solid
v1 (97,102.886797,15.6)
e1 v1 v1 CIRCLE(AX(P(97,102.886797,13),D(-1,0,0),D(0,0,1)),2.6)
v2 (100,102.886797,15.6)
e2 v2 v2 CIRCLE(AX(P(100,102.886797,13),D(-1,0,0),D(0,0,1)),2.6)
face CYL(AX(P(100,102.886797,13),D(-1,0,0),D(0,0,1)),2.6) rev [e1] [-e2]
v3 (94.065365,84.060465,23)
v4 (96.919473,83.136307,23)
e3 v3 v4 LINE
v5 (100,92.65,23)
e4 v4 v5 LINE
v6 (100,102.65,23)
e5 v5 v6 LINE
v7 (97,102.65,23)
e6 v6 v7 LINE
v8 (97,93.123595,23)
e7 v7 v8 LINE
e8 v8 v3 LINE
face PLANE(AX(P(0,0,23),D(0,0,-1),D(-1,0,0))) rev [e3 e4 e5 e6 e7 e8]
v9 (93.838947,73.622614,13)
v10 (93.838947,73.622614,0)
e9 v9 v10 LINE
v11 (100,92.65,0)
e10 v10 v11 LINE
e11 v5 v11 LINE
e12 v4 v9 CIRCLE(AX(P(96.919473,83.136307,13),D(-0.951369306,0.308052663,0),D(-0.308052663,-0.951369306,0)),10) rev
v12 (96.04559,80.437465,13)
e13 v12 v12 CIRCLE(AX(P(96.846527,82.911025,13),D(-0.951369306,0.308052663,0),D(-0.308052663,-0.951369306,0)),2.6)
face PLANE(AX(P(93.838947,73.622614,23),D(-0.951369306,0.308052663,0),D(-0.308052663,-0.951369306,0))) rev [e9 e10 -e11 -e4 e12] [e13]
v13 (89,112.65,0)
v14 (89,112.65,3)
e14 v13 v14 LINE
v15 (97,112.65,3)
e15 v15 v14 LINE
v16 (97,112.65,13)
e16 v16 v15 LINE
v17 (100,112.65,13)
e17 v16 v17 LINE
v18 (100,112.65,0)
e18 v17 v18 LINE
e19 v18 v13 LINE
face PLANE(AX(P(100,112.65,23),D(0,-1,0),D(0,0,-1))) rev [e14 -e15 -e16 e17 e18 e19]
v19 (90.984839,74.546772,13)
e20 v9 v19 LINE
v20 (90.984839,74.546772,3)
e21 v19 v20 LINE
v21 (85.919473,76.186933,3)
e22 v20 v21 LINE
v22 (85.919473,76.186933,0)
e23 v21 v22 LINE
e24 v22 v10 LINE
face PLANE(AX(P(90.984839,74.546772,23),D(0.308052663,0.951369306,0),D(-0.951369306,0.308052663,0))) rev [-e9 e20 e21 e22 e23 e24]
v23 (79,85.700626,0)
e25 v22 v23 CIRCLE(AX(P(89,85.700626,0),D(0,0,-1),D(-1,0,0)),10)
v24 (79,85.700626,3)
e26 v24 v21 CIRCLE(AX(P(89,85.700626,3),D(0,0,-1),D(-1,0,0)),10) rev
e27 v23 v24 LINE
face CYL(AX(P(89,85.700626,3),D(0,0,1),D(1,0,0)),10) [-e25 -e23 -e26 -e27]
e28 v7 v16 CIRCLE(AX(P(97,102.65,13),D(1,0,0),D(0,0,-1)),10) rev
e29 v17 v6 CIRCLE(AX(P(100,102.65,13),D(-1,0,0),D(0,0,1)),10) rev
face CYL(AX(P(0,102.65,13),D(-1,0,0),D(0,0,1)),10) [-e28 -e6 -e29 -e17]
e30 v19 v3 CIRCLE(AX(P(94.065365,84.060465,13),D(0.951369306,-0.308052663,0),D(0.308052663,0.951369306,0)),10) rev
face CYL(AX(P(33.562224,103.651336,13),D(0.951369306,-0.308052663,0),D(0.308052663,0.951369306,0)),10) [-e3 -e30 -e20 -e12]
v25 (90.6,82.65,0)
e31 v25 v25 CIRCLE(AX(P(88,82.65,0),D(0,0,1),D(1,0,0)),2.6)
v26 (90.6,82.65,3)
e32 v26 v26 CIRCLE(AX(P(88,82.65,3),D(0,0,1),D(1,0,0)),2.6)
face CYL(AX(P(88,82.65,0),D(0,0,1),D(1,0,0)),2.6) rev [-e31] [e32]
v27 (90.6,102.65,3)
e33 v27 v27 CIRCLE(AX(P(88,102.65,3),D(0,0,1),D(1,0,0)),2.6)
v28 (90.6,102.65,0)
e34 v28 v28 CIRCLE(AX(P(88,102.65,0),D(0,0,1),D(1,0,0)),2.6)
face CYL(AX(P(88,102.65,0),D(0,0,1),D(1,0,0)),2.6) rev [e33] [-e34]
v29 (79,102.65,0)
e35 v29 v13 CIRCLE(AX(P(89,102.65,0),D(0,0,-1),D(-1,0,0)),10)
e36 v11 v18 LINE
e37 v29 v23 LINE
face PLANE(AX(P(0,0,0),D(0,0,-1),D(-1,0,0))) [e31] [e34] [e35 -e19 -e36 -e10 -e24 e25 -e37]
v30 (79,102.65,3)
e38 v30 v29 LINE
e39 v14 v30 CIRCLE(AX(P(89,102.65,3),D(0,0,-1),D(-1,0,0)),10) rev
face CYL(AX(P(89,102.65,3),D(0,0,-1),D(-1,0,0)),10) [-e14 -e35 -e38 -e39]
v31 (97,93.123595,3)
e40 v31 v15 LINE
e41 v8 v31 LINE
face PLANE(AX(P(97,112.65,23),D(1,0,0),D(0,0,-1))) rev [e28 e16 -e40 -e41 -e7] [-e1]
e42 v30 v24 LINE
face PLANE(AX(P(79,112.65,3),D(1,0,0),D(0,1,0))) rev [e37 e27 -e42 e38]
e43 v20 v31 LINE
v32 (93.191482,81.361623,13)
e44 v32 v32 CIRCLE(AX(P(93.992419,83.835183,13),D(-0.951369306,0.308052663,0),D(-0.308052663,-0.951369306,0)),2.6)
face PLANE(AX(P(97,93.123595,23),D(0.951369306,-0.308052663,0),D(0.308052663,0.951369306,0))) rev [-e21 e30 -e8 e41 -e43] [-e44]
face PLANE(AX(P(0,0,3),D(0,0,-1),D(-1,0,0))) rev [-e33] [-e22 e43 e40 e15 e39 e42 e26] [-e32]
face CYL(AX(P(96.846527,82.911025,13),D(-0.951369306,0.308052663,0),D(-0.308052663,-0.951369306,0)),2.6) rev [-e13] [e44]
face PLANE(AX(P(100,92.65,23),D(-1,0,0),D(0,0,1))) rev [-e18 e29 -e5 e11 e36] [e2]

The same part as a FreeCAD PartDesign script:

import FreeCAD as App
import Part
import Sketcher


def edges_at(feature, points):
    """Names of the edges that pass closest to the given points."""
    edges = feature.Shape.Edges
    near = lambda p: min(range(len(edges)), key=lambda i: edges[i].distToShape(Part.Vertex(*p))[0])
    return sorted({f"Edge{near(p) + 1}" for p in points})

doc = App.newDocument("Part")
body = doc.addObject("PartDesign::Body", "Body")

# Sketch on XY plane
sketch1 = doc.addObject("Sketcher::SketchObject", "Sketch")
body.addObject(sketch1)
sketch1.AttachmentSupport = (doc.XY_Plane, [""])
sketch1.MapMode = "FlatFace"
sketch1.addGeometry(Part.LineSegment(App.Vector(100, 92.7, 0), App.Vector(100, 112.7, 0)), False)
sketch1.addGeometry(Part.LineSegment(App.Vector(100, 112.7, 0), App.Vector(97, 112.7, 0)), False)
sketch1.addGeometry(Part.LineSegment(App.Vector(97, 112.7, 0), App.Vector(97, 93.1, 0)), False)
sketch1.addGeometry(Part.LineSegment(App.Vector(97, 93.1, 0), App.Vector(91, 74.5, 0)), False)
sketch1.addGeometry(Part.LineSegment(App.Vector(91, 74.5, 0), App.Vector(93.8, 73.6, 0)), False)
sketch1.addGeometry(Part.LineSegment(App.Vector(93.8, 73.6, 0), App.Vector(100, 92.7, 0)), False)
sketch1.addConstraint(Sketcher.Constraint("Coincident", 0, 2, 1, 1))
sketch1.addConstraint(Sketcher.Constraint("Coincident", 1, 2, 2, 1))
sketch1.addConstraint(Sketcher.Constraint("Coincident", 2, 2, 3, 1))
sketch1.addConstraint(Sketcher.Constraint("Coincident", 3, 2, 4, 1))
sketch1.addConstraint(Sketcher.Constraint("Coincident", 4, 2, 5, 1))
sketch1.addConstraint(Sketcher.Constraint("Coincident", 5, 2, 0, 1))
sketch1.addConstraint(Sketcher.Constraint("Vertical", 0))
sketch1.addConstraint(Sketcher.Constraint("Horizontal", 1))
sketch1.addConstraint(Sketcher.Constraint("Vertical", 2))
sketch1.addConstraint(Sketcher.Constraint("Perpendicular", 3, 4))
sketch1.addConstraint(Sketcher.Constraint("Perpendicular", 4, 5))
sketch1.addConstraint(Sketcher.Constraint("DistanceX", 1, 2, 1, 1, 3.0))
sketch1.addConstraint(Sketcher.Constraint("DistanceY", 0, 1, 0, 2, 20.0))
sketch1.addConstraint(Sketcher.Constraint("Distance", 4, 3.0))
sketch1.addConstraint(Sketcher.Constraint("Distance", 5, 20.0))
sketch1.addConstraint(Sketcher.Constraint("DistanceX", -1, 1, 0, 2, 100.0))
sketch1.addConstraint(Sketcher.Constraint("DistanceY", -1, 1, 0, 2, 112.65))
sketch1.addConstraint(Sketcher.Constraint("DistanceY", 2, 2, 2, 1, 19.526405))
pad1 = doc.addObject("PartDesign::Pad", "Pad")
body.addObject(pad1)
pad1.Profile = sketch1
pad1.Length = 23

# Sketch on XY plane
sketch2 = doc.addObject("Sketcher::SketchObject", "Sketch001")
body.addObject(sketch2)
sketch2.AttachmentSupport = (doc.XY_Plane, [""])
sketch2.MapMode = "FlatFace"
sketch2.addGeometry(Part.LineSegment(App.Vector(79, 75, 0), App.Vector(91, 75, 0)), False)
sketch2.addGeometry(Part.LineSegment(App.Vector(91, 75, 0), App.Vector(97, 93, 0)), False)
sketch2.addGeometry(Part.LineSegment(App.Vector(97, 93, 0), App.Vector(97, 113, 0)), False)
sketch2.addGeometry(Part.LineSegment(App.Vector(97, 113, 0), App.Vector(79, 113, 0)), False)
sketch2.addGeometry(Part.LineSegment(App.Vector(79, 113, 0), App.Vector(79, 75, 0)), False)
sketch2.addConstraint(Sketcher.Constraint("Coincident", 0, 2, 1, 1))
sketch2.addConstraint(Sketcher.Constraint("Coincident", 1, 2, 2, 1))
sketch2.addConstraint(Sketcher.Constraint("Coincident", 2, 2, 3, 1))
sketch2.addConstraint(Sketcher.Constraint("Coincident", 3, 2, 4, 1))
sketch2.addConstraint(Sketcher.Constraint("Coincident", 4, 2, 0, 1))
sketch2.addConstraint(Sketcher.Constraint("Horizontal", 0))
sketch2.addConstraint(Sketcher.Constraint("Vertical", 2))
sketch2.addConstraint(Sketcher.Constraint("Horizontal", 3))
sketch2.addConstraint(Sketcher.Constraint("Vertical", 4))
sketch2.addConstraint(Sketcher.Constraint("DistanceX", 3, 2, 3, 1, 18.0))
sketch2.addConstraint(Sketcher.Constraint("DistanceX", -1, 1, 1, 2, 97.0))
sketch2.addConstraint(Sketcher.Constraint("DistanceY", -1, 1, 2, 2, 112.65))
sketch2.addConstraint(Sketcher.Constraint("DistanceX", 0, 1, 0, 2, 11.984839))
sketch2.addConstraint(Sketcher.Constraint("DistanceY", 4, 2, 4, 1, 38.103228))
sketch2.addConstraint(Sketcher.Constraint("DistanceY", 2, 1, 2, 2, 19.526405))
pad2 = doc.addObject("PartDesign::Pad", "Pad001")
body.addObject(pad2)
pad2.Profile = sketch2
pad2.Length = 3

# Sketch on XY plane
sketch3 = doc.addObject("Sketcher::SketchObject", "Sketch002")
body.addObject(sketch3)
sketch3.AttachmentSupport = (doc.XY_Plane, [""])
sketch3.MapMode = "FlatFace"
sketch3.AttachmentOffset = App.Placement(App.Vector(0, 0, 3), App.Rotation())
sketch3.addGeometry(Part.LineSegment(App.Vector(91, 74.5, 0), App.Vector(79, 78.4, 0)), False)
sketch3.addGeometry(Part.LineSegment(App.Vector(79, 78.4, 0), App.Vector(79, 74.5, 0)), False)
sketch3.addGeometry(Part.LineSegment(App.Vector(79, 74.5, 0), App.Vector(91, 74.5, 0)), False)
sketch3.addConstraint(Sketcher.Constraint("Coincident", 0, 2, 1, 1))
sketch3.addConstraint(Sketcher.Constraint("Coincident", 1, 2, 2, 1))
sketch3.addConstraint(Sketcher.Constraint("Coincident", 2, 2, 0, 1))
sketch3.addConstraint(Sketcher.Constraint("Vertical", 1))
sketch3.addConstraint(Sketcher.Constraint("Horizontal", 2))
sketch3.addConstraint(Sketcher.Constraint("DistanceX", -1, 1, 0, 2, 79.0))
sketch3.addConstraint(Sketcher.Constraint("DistanceX", 2, 1, 2, 2, 11.984839))
sketch3.addConstraint(Sketcher.Constraint("DistanceY", 1, 2, 1, 1, 3.880682))
sketch3.addConstraint(Sketcher.Constraint("DistanceY", -1, 1, 1, 2, 74.546772))
pocket1 = doc.addObject("PartDesign::Pocket", "Pocket")
body.addObject(pocket1)
pocket1.Profile = sketch3
pocket1.Length = 3

# Sketch on XY plane
sketch4 = doc.addObject("Sketcher::SketchObject", "Sketch003")
body.addObject(sketch4)
sketch4.AttachmentSupport = (doc.XY_Plane, [""])
sketch4.MapMode = "FlatFace"
sketch4.AttachmentOffset = App.Placement(App.Vector(0, 0, 3), App.Rotation())
sketch4.addGeometry(Part.Circle(App.Vector(88, 102.7, 0), App.Vector(0, 0, 1), 2.6), False)
sketch4.addGeometry(Part.Circle(App.Vector(88, 82.7, 0), App.Vector(0, 0, 1), 2.6), False)
sketch4.addConstraint(Sketcher.Constraint("Equal", 0, 1))
sketch4.addConstraint(Sketcher.Constraint("Vertical", 0, 3, 1, 3))
sketch4.addConstraint(Sketcher.Constraint("Diameter", 0, 5.2))
sketch4.addConstraint(Sketcher.Constraint("DistanceX", -1, 1, 0, 3, 88.0))
sketch4.addConstraint(Sketcher.Constraint("DistanceY", 1, 3, 0, 3, 20.0))
sketch4.addConstraint(Sketcher.Constraint("DistanceY", -1, 1, 0, 3, 102.65))
pocket2 = doc.addObject("PartDesign::Pocket", "Pocket001")
body.addObject(pocket2)
pocket2.Profile = sketch4
pocket2.Length = 3

# Sketch on YZ plane
sketch5 = doc.addObject("Sketcher::SketchObject", "Sketch004")
body.addObject(sketch5)
sketch5.AttachmentSupport = (doc.YZ_Plane, [""])
sketch5.MapMode = "FlatFace"
sketch5.AttachmentOffset = App.Placement(App.Vector(0, 0, 97), App.Rotation())
sketch5.addGeometry(Part.Circle(App.Vector(102.9, 13, 0), App.Vector(0, 0, 1), 2.6), False)
sketch5.addConstraint(Sketcher.Constraint("Diameter", 0, 5.2))
sketch5.addConstraint(Sketcher.Constraint("DistanceY", -1, 1, 0, 3, 13.0))
sketch5.addConstraint(Sketcher.Constraint("DistanceX", -1, 1, 0, 3, 102.886797))
pocket3 = doc.addObject("PartDesign::Pocket", "Pocket002")
body.addObject(pocket3)
pocket3.Profile = sketch5
pocket3.Length = 3
pocket3.Reversed = True

# Sketch on an angled plane
sketch6 = doc.addObject("Sketcher::SketchObject", "Sketch005")
body.addObject(sketch6)
sketch6.Placement = App.Placement(App.Vector(60.503141, -19.590871, 0), App.Rotation(App.Vector(0, 0, 1), App.Vector(0.308052663, 0.951369306, 0), App.Vector(-0.951369306, 0.308052663, 0), "ZXY"))
sketch6.addGeometry(Part.Circle(App.Vector(13, 108.7, 0), App.Vector(0, 0, 1), 2.6), False)
sketch6.addConstraint(Sketcher.Constraint("Diameter", 0, 5.2))
sketch6.addConstraint(Sketcher.Constraint("DistanceX", -1, 1, 0, 3, 13.0))
sketch6.addConstraint(Sketcher.Constraint("DistanceY", -1, 1, 0, 3, 108.712835))
pocket4 = doc.addObject("PartDesign::Pocket", "Pocket003")
body.addObject(pocket4)
pocket4.Profile = sketch6
pocket4.Length = 3
doc.recompute()

fillet = doc.addObject("PartDesign::Fillet", "Fillet")
body.addObject(fillet)
fillet.Base = (pocket4, edges_at(pocket4, [
    (98.5, 112.65, 23),
    (92.412, 74.085, 23),
    (79, 112.65, 1.5),
    (79, 78.427, 1.5),
]))
fillet.Radius = 10

doc.recompute()
